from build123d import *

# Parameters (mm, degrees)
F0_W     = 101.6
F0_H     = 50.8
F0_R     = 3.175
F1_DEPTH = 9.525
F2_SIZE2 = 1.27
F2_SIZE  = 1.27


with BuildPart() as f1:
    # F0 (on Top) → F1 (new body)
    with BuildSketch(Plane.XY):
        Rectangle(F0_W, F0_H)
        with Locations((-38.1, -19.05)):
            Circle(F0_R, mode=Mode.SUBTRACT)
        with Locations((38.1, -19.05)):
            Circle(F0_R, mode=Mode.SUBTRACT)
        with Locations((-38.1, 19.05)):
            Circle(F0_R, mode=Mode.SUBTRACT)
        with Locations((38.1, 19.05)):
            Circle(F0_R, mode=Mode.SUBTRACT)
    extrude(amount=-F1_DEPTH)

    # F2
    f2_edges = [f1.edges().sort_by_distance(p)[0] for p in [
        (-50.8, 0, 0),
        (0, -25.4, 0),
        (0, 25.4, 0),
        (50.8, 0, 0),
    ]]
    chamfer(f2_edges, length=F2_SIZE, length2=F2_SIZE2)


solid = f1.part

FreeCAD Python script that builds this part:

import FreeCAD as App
import Part
import Sketcher
from FreeCAD import Vector
Q = App.Units.Quantity


def edges_at(feature, points):
    """Names of the edges that pass closest to the given points."""
    edges = feature.Shape.Edges
    near = lambda p: min(range(len(edges)), key=lambda i: edges[i].distToShape(Part.Vertex(*p))[0])
    return sorted({f"Edge{near(p) + 1}" for p in points})

doc = App.newDocument("Part")
params = doc.addObject("Spreadsheet::Sheet", "Params")
for row, (alias, value) in enumerate([
    ("sketch1_diameter", "0.25 in"),
    ("sketch1_width", "4 in"),
    ("sketch1_height", "2 in"),
    ("pad1_length", "0.375 in"),
    ("chamfer_size", "0.05 in"),
    ("chamfer_size2", "0.05 in"),
], start=1):
    params.set(f"A{row}", alias)
    params.set(f"B{row}", "=" + value)
    params.setAlias(f"B{row}", alias)

body = doc.addObject("PartDesign::Body", "Body")

# Sketch on XY plane
sketch1 = body.newObject("Sketcher::SketchObject", "Sketch")
sketch1.AttachmentSupport = (doc.getObject("XY_Plane"), [""])
sketch1.MapMode = "FlatFace"
sketch1.addGeometry([
    Part.LineSegment(Vector(-50.8, 25.4, 0), Vector(-50.8, -25.4, 0)),  # 0
    Part.LineSegment(Vector(-50.8, -25.4, 0), Vector(50.8, -25.4, 0)),  # 1
    Part.LineSegment(Vector(50.8, -25.4, 0), Vector(50.8, 25.4, 0)),  # 2
    Part.LineSegment(Vector(50.8, 25.4, 0), Vector(-50.8, 25.4, 0)),  # 3
    Part.Circle(Vector(-38.1, -19.1, 0), Vector(0, 0, 1), 3.2),  # 4
    Part.Circle(Vector(38.1, -19.1, 0), Vector(0, 0, 1), 3.2),  # 5
    Part.Circle(Vector(-38.1, 19.1, 0), Vector(0, 0, 1), 3.2),  # 6
    Part.Circle(Vector(38.1, 19.1, 0), Vector(0, 0, 1), 3.2),  # 7
], False)
sketch1.addConstraint([
    Sketcher.Constraint("Coincident", 0, 2, 1, 1),
    Sketcher.Constraint("Coincident", 1, 2, 2, 1),
    Sketcher.Constraint("Coincident", 2, 2, 3, 1),
    Sketcher.Constraint("Coincident", 3, 2, 0, 1),
    Sketcher.Constraint("Vertical", 0),
    Sketcher.Constraint("Horizontal", 1),
    Sketcher.Constraint("Vertical", 2),
    Sketcher.Constraint("Horizontal", 3),
    Sketcher.Constraint("Equal", 4, 5),
    Sketcher.Constraint("Equal", 5, 6),
    Sketcher.Constraint("Equal", 6, 7),
    Sketcher.Constraint("Symmetric", 5, 3, 6, 3, -1, 1),
    Sketcher.Constraint("Symmetric", 4, 3, 7, 3, -1, 1),
    Sketcher.Constraint("Symmetric", 0, 2, 2, 2, -1, 1),
    Sketcher.Constraint("Symmetric", 4, 3, 5, 3, -2),
    Sketcher.Constraint("Diameter", 4, Q("0.25 in")),
    Sketcher.Constraint("DistanceX", 1, 1, 1, 2, Q("4 in")),
    Sketcher.Constraint("DistanceY", 0, 2, 0, 1, Q("2 in")),
    Sketcher.Constraint("DistanceX", 4, 3, 5, 3, Q("3 in")),
    Sketcher.Constraint("DistanceY", 4, 3, 6, 3, Q("1.5 in")),
])
sketch1.setExpression("Constraints[15]", "Params.sketch1_diameter")
sketch1.setExpression("Constraints[16]", "Params.sketch1_width")
sketch1.setExpression("Constraints[17]", "Params.sketch1_height")
pad1 = body.newObject("PartDesign::Pad", "Pad")
pad1.Profile = sketch1
pad1.setExpression("Length", "Params.pad1_length")
pad1.Reversed = True
doc.recompute()

chamfer = body.newObject("PartDesign::Chamfer", "Chamfer")
chamfer.Base = (pad1, edges_at(pad1, [
    (-50.8, 0, 0),
    (0, -25.4, 0),
    (0, 25.4, 0),
    (50.8, 0, 0),
]))
chamfer.ChamferType = "Two distances"
chamfer.setExpression("Size", "Params.chamfer_size")
chamfer.setExpression("Size2", "Params.chamfer_size2")

doc.recompute()
